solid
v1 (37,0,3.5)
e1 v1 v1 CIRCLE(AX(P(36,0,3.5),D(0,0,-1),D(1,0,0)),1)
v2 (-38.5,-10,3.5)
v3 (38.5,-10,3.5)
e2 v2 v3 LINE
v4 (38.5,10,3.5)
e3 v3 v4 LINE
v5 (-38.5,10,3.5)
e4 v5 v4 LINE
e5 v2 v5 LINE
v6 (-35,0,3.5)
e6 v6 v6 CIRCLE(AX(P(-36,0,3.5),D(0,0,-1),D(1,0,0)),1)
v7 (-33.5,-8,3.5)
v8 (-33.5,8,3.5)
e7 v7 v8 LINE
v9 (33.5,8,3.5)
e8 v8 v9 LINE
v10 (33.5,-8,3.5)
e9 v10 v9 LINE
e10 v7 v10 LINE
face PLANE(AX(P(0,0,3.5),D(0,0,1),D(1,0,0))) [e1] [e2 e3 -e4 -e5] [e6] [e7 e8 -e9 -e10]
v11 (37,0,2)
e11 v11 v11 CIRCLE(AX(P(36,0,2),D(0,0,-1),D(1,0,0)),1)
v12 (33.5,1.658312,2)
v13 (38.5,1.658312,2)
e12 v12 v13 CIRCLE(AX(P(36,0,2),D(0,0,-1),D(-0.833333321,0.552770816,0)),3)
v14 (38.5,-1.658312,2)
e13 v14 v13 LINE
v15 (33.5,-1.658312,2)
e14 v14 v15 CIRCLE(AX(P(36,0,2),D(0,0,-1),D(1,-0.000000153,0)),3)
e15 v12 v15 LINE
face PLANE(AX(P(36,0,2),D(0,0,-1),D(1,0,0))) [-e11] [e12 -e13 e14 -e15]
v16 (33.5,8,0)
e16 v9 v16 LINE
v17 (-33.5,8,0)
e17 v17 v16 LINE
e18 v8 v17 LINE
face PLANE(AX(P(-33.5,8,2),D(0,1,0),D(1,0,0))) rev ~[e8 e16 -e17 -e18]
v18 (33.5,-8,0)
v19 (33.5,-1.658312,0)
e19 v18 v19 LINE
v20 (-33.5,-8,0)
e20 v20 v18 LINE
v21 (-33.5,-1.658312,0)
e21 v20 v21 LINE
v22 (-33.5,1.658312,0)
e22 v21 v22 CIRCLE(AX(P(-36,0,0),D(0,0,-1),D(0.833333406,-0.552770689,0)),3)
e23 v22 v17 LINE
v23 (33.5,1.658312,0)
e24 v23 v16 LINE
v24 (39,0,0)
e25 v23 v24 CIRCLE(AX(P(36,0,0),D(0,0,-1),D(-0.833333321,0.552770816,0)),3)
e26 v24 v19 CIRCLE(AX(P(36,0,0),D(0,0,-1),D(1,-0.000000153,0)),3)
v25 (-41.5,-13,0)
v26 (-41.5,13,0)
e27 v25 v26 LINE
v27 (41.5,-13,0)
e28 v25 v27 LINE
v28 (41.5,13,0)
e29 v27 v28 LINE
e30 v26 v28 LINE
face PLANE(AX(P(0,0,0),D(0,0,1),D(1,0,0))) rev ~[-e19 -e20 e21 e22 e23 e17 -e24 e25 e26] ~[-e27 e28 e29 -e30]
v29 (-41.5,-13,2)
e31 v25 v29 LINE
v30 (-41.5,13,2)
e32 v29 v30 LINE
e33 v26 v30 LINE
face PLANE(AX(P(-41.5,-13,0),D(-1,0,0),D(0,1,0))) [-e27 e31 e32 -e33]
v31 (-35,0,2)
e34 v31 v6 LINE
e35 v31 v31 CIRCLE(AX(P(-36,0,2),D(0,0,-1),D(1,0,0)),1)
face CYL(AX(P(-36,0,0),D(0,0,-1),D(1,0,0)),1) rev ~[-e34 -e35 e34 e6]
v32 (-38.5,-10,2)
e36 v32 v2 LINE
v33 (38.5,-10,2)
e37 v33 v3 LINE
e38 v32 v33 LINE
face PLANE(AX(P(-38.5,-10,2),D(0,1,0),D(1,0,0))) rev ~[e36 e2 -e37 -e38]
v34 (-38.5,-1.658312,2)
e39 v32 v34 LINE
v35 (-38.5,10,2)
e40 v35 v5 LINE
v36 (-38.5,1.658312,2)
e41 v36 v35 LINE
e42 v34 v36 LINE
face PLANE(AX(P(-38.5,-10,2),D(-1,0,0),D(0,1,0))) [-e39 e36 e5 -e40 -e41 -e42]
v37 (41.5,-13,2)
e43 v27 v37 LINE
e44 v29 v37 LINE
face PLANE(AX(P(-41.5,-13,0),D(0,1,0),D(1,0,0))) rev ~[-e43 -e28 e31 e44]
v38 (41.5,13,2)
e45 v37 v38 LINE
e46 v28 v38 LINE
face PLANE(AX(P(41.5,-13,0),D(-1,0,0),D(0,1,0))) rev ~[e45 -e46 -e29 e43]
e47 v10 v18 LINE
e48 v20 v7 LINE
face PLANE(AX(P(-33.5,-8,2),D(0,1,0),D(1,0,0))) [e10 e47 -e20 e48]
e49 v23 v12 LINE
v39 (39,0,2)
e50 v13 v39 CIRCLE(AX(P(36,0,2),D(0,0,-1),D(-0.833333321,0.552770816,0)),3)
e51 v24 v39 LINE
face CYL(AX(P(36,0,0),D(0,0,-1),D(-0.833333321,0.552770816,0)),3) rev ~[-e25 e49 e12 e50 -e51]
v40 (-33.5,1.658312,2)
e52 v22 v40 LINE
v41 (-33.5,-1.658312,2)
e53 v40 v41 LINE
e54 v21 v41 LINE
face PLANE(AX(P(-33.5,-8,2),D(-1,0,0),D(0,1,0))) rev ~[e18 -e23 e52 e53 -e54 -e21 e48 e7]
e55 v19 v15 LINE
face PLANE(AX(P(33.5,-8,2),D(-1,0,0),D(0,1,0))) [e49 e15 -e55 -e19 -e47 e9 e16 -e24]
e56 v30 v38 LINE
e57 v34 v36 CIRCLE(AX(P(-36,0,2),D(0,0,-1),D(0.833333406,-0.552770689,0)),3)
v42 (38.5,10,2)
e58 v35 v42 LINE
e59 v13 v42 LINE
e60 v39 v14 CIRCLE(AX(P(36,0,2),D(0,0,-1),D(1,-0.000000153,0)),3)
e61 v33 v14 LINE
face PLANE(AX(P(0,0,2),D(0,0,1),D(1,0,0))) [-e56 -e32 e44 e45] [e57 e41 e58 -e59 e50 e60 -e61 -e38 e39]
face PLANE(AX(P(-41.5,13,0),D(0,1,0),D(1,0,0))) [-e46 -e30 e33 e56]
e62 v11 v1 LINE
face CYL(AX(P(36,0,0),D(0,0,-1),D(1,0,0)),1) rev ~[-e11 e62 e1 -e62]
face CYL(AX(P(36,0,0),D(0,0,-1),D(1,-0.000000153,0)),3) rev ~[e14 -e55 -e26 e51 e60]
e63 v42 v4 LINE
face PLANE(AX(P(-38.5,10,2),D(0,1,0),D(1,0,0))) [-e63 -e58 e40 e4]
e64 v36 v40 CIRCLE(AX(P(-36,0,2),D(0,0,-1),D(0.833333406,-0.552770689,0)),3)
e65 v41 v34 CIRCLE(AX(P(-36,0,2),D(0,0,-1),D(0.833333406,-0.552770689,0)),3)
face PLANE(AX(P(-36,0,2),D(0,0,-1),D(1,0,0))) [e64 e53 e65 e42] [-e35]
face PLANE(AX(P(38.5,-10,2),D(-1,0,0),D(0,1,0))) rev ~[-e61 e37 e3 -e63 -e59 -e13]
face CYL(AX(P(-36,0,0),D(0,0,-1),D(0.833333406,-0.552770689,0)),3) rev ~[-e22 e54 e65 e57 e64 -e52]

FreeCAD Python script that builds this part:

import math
import FreeCAD as App
import Part
import Sketcher
from FreeCAD import Vector
Q = App.Units.Quantity

doc = App.newDocument("Part")
body = doc.addObject("PartDesign::Body", "Body")

# Sketch on XY plane
sketch1 = body.newObject("Sketcher::SketchObject", "Sketch")
sketch1.AttachmentSupport = (doc.getObject("XY_Plane"), [""])
sketch1.MapMode = "FlatFace"
sketch1.addGeometry([
    Part.LineSegment(Vector(-42, 13, 0), Vector(-42, -13, 0)),  # 0
    Part.LineSegment(Vector(-42, -13, 0), Vector(42, -13, 0)),  # 1
    Part.LineSegment(Vector(42, -13, 0), Vector(42, 13, 0)),  # 2
    Part.LineSegment(Vector(42, 13, 0), Vector(-42, 13, 0)),  # 3
    Part.LineSegment(Vector(34, -8, 0), Vector(-34, -8, 0)),  # 4
    Part.LineSegment(Vector(-34, -8, 0), Vector(-34, 8, 0)),  # 5
    Part.LineSegment(Vector(-34, 8, 0), Vector(34, 8, 0)),  # 6
    Part.LineSegment(Vector(34, 8, 0), Vector(34, -8, 0)),  # 7
], False)
sketch1.addConstraint([
    Sketcher.Constraint("Coincident", 0, 2, 1, 1),
    Sketcher.Constraint("Coincident", 1, 2, 2, 1),
    Sketcher.Constraint("Coincident", 2, 2, 3, 1),
    Sketcher.Constraint("Coincident", 3, 2, 0, 1),
    Sketcher.Constraint("Coincident", 4, 2, 5, 1),
    Sketcher.Constraint("Coincident", 5, 2, 6, 1),
    Sketcher.Constraint("Coincident", 6, 2, 7, 1),
    Sketcher.Constraint("Coincident", 7, 2, 4, 1),
    Sketcher.Constraint("Vertical", 0),
    Sketcher.Constraint("Horizontal", 1),
    Sketcher.Constraint("Vertical", 2),
    Sketcher.Constraint("Horizontal", 3),
    Sketcher.Constraint("Horizontal", 4),
    Sketcher.Constraint("Vertical", 5),
    Sketcher.Constraint("Horizontal", 6),
    Sketcher.Constraint("Vertical", 7),
    Sketcher.Constraint("Symmetric", 0, 2, 2, 2, -1, 1),
    Sketcher.Constraint("Symmetric", 4, 2, 6, 2, -1, 1),
    Sketcher.Constraint("DistanceX", 1, 1, 1, 2, Q("83 mm")),
    Sketcher.Constraint("DistanceX", 4, 2, 4, 1, Q("67 mm")),
    Sketcher.Constraint("DistanceY", 0, 2, 0, 1, Q("26 mm")),
    Sketcher.Constraint("DistanceY", 5, 1, 5, 2, Q("16 mm")),
])
pad1 = body.newObject("PartDesign::Pad", "Pad")
pad1.Profile = sketch1
pad1.Length = 2

# Sketch on XY plane
sketch2 = body.newObject("Sketcher::SketchObject", "Sketch001")
sketch2.AttachmentSupport = (doc.getObject("XY_Plane"), [""])
sketch2.MapMode = "FlatFace"
sketch2.AttachmentOffset = App.Placement(Vector(0, 0, 2), App.Rotation())
sketch2.addGeometry([
    Part.LineSegment(Vector(-38, 10, 0), Vector(-38, -10, 0)),  # 0
    Part.LineSegment(Vector(-38, -10, 0), Vector(38, -10, 0)),  # 1
    Part.LineSegment(Vector(38, -10, 0), Vector(38, 10, 0)),  # 2
    Part.LineSegment(Vector(38, 10, 0), Vector(-38, 10, 0)),  # 3
    Part.LineSegment(Vector(34, -8, 0), Vector(-34, -8, 0)),  # 4
    Part.LineSegment(Vector(-34, -8, 0), Vector(-34, 8, 0)),  # 5
    Part.LineSegment(Vector(-34, 8, 0), Vector(34, 8, 0)),  # 6
    Part.LineSegment(Vector(34, 8, 0), Vector(34, -8, 0)),  # 7
], False)
sketch2.addConstraint([
    Sketcher.Constraint("Coincident", 0, 2, 1, 1),
    Sketcher.Constraint("Coincident", 1, 2, 2, 1),
    Sketcher.Constraint("Coincident", 2, 2, 3, 1),
    Sketcher.Constraint("Coincident", 3, 2, 0, 1),
    Sketcher.Constraint("Coincident", 4, 2, 5, 1),
    Sketcher.Constraint("Coincident", 5, 2, 6, 1),
    Sketcher.Constraint("Coincident", 6, 2, 7, 1),
    Sketcher.Constraint("Coincident", 7, 2, 4, 1),
    Sketcher.Constraint("Vertical", 0),
    Sketcher.Constraint("Horizontal", 1),
    Sketcher.Constraint("Vertical", 2),
    Sketcher.Constraint("Horizontal", 3),
    Sketcher.Constraint("Horizontal", 4),
    Sketcher.Constraint("Vertical", 5),
    Sketcher.Constraint("Horizontal", 6),
    Sketcher.Constraint("Vertical", 7),
    Sketcher.Constraint("Symmetric", 0, 2, 2, 2, -1, 1),
    Sketcher.Constraint("Symmetric", 4, 2, 6, 2, -1, 1),
    Sketcher.Constraint("DistanceX", 1, 1, 1, 2, Q("77 mm")),
    Sketcher.Constraint("DistanceX", 4, 2, 4, 1, Q("67 mm")),
    Sketcher.Constraint("DistanceY", 0, 2, 0, 1, Q("20 mm")),
    Sketcher.Constraint("DistanceY", 5, 1, 5, 2, Q("16 mm")),
])
pad2 = body.newObject("PartDesign::Pad", "Pad001")
pad2.Profile = sketch2
pad2.Length = 1.5

# Sketch on XY plane
sketch3 = body.newObject("Sketcher::SketchObject", "Sketch002")
sketch3.AttachmentSupport = (doc.getObject("XY_Plane"), [""])
sketch3.MapMode = "FlatFace"
sketch3.addGeometry([
    Part.Circle(Vector(-36, 0, 0), Vector(0, 0, 1), 1),
    Part.Circle(Vector(36, 0, 0), Vector(0, 0, 1), 1),
], False)
sketch3.addConstraint([
    Sketcher.Constraint("Equal", 0, 1),
    Sketcher.Constraint("Symmetric", 0, 3, 1, 3, -1, 1),
    Sketcher.Constraint("PointOnObject", 0, 3, -1),
    Sketcher.Constraint("Diameter", 0, Q("2 mm")),
    Sketcher.Constraint("DistanceX", 0, 3, -1, 1, Q("36 mm")),
])
pocket1 = body.newObject("PartDesign::Pocket", "Pocket")
pocket1.Profile = sketch3
pocket1.Length = 25
pocket1.Reversed = True

# Sketch on XY plane
sketch4 = body.newObject("Sketcher::SketchObject", "Sketch003")
sketch4.AttachmentSupport = (doc.getObject("XY_Plane"), [""])
sketch4.MapMode = "FlatFace"
sketch4.addGeometry([
    Part.LineSegment(Vector(-33.5, 1.7, 0), Vector(-33.5, -1.7, 0)),  # 0
    Part.ArcOfCircle(Part.Circle(Vector(-36, 0, 0), Vector(0, 0, 1), 3), math.radians(34), math.radians(326)),  # 1
    Part.Circle(Vector(-36, 0, 0), Vector(0, 0, 1), 1),  # 2
    Part.ArcOfCircle(Part.Circle(Vector(36, 0, 0), Vector(0, 0, 1), 3), math.radians(-146), math.radians(0)),  # 3
    Part.ArcOfCircle(Part.Circle(Vector(36, 0, 0), Vector(0, 0, 1), 3), math.radians(146), math.radians(214)),  # 4
    Part.ArcOfCircle(Part.Circle(Vector(36, 0, 0), Vector(0, 0, 1), 3), math.radians(0), math.radians(146)),  # 5
    Part.Circle(Vector(36, 0, 0), Vector(0, 0, 1), 1),  # 6
], False)
sketch4.addConstraint([
    Sketcher.Constraint("Coincident", 0, 1, 1, 1),
    Sketcher.Constraint("Coincident", 1, 2, 0, 2),
    Sketcher.Constraint("Tangent", 3, 1, 4, 2),
    Sketcher.Constraint("Tangent", 4, 1, 5, 2),
    Sketcher.Constraint("Tangent", 5, 1, 3, 2),
    Sketcher.Constraint("Vertical", 0),
    Sketcher.Constraint("Coincident", 2, 3, 1, 3),
    Sketcher.Constraint("Coincident", 6, 3, 3, 3),
    Sketcher.Constraint("Equal", 1, 3),
    Sketcher.Constraint("Equal", 2, 6),
    Sketcher.Constraint("Symmetric", 1, 3, 3, 3, -1, 1),
    Sketcher.Constraint("Symmetric", 1, 2, 3, 1, -2),
    Sketcher.Constraint("PointOnObject", 5, 1, -1),
    Sketcher.Constraint("Horizontal", 0, 1, 4, 1),
    Sketcher.Constraint("Diameter", 2, Q("2 mm")),
    Sketcher.Constraint("Radius", 1, Q("3 mm")),
    Sketcher.Constraint("DistanceX", 1, 3, -1, 1, Q("36 mm")),
    Sketcher.Constraint("DistanceX", 1, 2, 3, 1, Q("67 mm")),
])
pocket2 = body.newObject("PartDesign::Pocket", "Pocket001")
pocket2.Profile = sketch4
pocket2.Length = 2
pocket2.Reversed = True

doc.recompute()
